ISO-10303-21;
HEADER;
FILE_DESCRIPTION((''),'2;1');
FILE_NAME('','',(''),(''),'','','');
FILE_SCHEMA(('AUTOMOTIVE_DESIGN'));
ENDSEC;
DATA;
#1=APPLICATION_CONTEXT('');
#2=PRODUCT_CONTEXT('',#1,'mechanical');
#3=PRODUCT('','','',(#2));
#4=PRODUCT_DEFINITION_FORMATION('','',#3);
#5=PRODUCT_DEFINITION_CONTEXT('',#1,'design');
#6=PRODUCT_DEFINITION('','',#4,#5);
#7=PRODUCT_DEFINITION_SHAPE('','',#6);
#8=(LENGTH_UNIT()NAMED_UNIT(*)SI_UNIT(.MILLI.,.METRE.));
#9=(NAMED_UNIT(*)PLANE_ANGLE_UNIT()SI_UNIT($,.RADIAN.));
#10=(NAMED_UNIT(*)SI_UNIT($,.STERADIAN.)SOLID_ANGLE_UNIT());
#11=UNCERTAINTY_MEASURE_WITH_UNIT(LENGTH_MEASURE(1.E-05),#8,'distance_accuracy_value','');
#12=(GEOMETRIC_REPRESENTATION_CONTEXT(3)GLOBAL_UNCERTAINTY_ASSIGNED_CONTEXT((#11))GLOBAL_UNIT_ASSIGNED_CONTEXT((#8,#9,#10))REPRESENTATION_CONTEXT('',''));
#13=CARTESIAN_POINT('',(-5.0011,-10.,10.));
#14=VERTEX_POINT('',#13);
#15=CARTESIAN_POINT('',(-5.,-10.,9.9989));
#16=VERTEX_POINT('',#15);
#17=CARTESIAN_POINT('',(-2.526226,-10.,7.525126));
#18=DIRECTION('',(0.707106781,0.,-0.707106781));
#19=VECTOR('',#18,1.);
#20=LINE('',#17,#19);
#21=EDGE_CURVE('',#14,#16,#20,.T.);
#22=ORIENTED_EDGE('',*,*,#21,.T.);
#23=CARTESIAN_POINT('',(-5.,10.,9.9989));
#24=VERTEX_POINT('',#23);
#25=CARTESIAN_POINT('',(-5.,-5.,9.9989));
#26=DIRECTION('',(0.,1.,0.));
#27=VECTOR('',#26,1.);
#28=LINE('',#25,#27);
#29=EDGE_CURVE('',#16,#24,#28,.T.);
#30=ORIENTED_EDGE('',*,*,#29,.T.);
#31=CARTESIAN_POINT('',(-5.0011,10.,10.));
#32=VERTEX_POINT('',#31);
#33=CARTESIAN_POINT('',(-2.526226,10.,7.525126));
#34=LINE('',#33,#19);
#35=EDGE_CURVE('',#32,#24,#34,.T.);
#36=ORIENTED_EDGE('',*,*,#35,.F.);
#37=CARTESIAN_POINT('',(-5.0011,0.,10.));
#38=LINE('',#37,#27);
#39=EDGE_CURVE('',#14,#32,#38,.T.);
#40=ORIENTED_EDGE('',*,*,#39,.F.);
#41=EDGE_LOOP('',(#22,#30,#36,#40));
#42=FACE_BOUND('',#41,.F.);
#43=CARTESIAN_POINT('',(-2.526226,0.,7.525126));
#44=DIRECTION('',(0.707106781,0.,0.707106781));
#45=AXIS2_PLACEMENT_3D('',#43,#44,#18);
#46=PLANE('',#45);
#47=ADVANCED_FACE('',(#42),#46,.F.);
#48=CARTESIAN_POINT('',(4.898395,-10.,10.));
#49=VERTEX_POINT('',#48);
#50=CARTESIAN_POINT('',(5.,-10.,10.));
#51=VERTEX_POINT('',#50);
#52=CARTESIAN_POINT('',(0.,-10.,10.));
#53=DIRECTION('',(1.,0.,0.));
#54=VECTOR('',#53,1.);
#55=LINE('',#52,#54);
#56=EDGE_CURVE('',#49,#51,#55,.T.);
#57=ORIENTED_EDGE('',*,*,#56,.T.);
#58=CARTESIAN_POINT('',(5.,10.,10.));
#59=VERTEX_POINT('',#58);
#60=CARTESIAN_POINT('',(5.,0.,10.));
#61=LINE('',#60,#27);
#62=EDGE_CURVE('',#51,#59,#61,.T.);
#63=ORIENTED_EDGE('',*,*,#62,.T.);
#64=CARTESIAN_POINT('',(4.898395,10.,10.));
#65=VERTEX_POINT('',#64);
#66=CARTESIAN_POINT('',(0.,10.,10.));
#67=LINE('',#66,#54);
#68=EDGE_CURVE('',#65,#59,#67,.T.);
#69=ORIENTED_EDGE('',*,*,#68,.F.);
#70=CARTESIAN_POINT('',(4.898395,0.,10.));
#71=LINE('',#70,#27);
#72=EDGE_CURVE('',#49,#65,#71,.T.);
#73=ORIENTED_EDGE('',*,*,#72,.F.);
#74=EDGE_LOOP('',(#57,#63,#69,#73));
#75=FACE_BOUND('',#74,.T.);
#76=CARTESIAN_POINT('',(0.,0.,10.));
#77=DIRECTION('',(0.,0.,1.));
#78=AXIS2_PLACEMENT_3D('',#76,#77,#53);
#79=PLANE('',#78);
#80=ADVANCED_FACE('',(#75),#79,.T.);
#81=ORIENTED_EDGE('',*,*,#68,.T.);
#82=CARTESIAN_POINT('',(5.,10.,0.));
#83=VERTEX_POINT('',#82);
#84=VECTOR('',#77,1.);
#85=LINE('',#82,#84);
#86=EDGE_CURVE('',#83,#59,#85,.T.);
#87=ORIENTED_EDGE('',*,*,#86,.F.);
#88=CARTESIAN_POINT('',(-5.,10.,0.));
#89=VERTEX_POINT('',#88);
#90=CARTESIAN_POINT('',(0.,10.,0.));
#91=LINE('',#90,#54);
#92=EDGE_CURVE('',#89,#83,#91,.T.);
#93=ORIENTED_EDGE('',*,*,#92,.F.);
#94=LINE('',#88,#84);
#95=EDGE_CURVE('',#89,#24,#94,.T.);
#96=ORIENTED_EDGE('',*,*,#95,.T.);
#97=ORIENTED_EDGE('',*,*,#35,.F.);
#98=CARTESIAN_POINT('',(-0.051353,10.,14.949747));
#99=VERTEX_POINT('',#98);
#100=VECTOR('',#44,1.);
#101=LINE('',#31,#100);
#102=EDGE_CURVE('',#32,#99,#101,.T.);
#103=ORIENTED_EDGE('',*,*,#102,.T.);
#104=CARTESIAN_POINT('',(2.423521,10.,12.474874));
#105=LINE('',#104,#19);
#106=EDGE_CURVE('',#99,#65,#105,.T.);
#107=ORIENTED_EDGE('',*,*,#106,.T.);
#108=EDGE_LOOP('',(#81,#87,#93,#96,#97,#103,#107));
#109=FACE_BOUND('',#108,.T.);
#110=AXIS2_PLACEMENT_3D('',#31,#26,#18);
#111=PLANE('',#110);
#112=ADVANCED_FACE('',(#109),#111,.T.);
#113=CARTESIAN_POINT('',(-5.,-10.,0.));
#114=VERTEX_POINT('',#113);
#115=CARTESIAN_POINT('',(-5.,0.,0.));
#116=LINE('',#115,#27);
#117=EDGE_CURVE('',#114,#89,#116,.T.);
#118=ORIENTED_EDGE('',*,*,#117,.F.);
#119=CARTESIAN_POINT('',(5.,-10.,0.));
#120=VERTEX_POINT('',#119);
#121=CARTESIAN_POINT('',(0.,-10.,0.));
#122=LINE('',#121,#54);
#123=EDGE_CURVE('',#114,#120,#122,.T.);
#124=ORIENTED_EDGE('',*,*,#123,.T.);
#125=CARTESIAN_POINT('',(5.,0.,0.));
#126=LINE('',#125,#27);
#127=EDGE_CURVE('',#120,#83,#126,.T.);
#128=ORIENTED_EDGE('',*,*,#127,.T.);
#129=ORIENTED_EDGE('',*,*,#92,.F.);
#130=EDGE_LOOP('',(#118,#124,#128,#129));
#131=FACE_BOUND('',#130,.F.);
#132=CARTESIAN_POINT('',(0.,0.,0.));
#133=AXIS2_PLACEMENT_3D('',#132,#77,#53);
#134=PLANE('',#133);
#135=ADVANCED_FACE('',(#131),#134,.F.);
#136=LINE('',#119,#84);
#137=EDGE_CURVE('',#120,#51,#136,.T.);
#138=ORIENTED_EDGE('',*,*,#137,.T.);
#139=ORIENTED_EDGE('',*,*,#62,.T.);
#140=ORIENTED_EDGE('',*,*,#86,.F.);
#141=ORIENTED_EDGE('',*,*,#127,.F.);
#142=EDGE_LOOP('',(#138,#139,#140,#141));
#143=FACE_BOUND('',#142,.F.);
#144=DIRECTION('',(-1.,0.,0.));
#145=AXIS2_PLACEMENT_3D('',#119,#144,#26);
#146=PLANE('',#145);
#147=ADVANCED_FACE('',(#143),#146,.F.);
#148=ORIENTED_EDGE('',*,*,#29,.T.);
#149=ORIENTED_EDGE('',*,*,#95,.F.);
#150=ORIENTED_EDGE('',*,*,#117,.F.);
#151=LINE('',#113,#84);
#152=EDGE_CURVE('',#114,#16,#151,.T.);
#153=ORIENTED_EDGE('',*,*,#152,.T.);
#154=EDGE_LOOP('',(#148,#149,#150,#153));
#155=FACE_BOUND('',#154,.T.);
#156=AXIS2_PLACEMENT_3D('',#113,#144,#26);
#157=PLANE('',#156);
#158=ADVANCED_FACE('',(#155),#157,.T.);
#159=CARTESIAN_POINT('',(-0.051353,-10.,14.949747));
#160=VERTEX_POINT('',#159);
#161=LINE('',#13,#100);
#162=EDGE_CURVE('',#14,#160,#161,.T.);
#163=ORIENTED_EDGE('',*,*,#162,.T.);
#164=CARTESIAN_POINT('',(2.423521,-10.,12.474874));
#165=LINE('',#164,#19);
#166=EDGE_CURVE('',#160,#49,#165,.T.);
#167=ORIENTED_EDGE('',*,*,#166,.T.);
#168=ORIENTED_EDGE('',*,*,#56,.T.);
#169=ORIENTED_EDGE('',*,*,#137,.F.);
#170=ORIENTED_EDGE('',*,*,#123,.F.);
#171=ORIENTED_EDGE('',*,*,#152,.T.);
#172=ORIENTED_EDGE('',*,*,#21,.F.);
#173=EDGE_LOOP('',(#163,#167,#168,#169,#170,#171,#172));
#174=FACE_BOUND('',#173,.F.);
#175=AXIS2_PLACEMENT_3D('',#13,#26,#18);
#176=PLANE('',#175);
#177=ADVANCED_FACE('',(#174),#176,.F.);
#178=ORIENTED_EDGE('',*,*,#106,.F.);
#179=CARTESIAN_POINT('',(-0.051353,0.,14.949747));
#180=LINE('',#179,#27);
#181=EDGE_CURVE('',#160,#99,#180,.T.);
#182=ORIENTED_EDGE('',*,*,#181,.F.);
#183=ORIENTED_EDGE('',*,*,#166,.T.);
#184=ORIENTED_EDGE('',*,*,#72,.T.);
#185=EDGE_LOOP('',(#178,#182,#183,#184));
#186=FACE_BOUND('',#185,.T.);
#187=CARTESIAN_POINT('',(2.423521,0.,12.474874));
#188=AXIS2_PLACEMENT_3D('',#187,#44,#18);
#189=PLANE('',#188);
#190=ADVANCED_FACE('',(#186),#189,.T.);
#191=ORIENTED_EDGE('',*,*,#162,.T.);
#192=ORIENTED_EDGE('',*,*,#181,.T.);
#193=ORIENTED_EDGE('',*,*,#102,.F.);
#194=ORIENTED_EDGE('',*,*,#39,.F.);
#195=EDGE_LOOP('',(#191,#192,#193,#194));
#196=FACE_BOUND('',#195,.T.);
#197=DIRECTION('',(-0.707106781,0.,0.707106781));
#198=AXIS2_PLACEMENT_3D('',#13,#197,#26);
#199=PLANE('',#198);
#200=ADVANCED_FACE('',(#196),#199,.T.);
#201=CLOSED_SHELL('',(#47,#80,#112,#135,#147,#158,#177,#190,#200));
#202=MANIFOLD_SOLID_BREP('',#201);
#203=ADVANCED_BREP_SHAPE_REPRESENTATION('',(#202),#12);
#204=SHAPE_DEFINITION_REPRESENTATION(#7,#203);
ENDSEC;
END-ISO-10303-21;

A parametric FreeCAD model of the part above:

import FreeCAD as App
import Part
import Sketcher
from FreeCAD import Vector


def add_polygon(sketch, points):
    """Adds a closed chain of lines whose ends are joined by coincident constraints."""
    first, n = sketch.GeometryCount, len(points)
    for a, b in zip(points, points[1:] + points[:1]):
        sketch.addGeometry(Part.LineSegment(App.Vector(*a, 0), App.Vector(*b, 0)), False)
    for i in range(n):
        sketch.addConstraint(Sketcher.Constraint("Coincident", first + i, 2, first + (i + 1) % n, 1))

doc = App.newDocument("Part")
body = doc.addObject("PartDesign::Body", "Body")

# Sketch on XY plane
sketch1 = body.newObject("Sketcher::SketchObject", "Sketch")
sketch1.AttachmentSupport = (doc.getObject("XY_Plane"), [""])
sketch1.MapMode = "FlatFace"
add_polygon(sketch1, [(0, 20), (0, 0), (7, 0), (7, 20)])  # lines 0-3
sketch1.addConstraint(Sketcher.Constraint("Vertical", 0))
sketch1.addConstraint(Sketcher.Constraint("Horizontal", 1))
sketch1.addConstraint(Sketcher.Constraint("Vertical", 2))
sketch1.addConstraint(Sketcher.Constraint("Horizontal", 3))
sketch1.addConstraint(Sketcher.Constraint("Coincident", 0, 2, -1, 1))
sketch1.addConstraint(Sketcher.Constraint("DistanceX", 1, 1, 1, 2, 7.0))
sketch1.addConstraint(Sketcher.Constraint("DistanceY", 0, 2, 0, 1, 20.0))
pad1 = body.newObject("PartDesign::Pad", "Pad")
pad1.Profile = sketch1
pad1.Length = 7
body2 = doc.addObject("PartDesign::Body", "Body001")
doc.recompute()

body.Placement = App.Placement(Vector(-0.0011, 0, 10), App.Rotation(Vector(0, 1, 0), 45))
boolean = body2.newObject("PartDesign::Boolean", "Boolean")
boolean.Type = "Fuse"
boolean.addObjects([body])
body3 = doc.addObject("PartDesign::Body", "Body002")

# Sketch on XY plane
sketch2 = body3.newObject("Sketcher::SketchObject", "Sketch001")
sketch2.AttachmentSupport = (doc.getObject("XY_Plane002"), [""])
sketch2.MapMode = "FlatFace"
add_polygon(sketch2, [(0, 20), (0, 0), (10, 0), (10, 20)])  # lines 0-3
sketch2.addConstraint(Sketcher.Constraint("Vertical", 0))
sketch2.addConstraint(Sketcher.Constraint("Horizontal", 1))
sketch2.addConstraint(Sketcher.Constraint("Vertical", 2))
sketch2.addConstraint(Sketcher.Constraint("Horizontal", 3))
sketch2.addConstraint(Sketcher.Constraint("Coincident", 0, 2, -1, 1))
sketch2.addConstraint(Sketcher.Constraint("DistanceX", 1, 1, 1, 2, 10.0))
sketch2.addConstraint(Sketcher.Constraint("DistanceY", 0, 2, 0, 1, 20.0))
pad2 = body3.newObject("PartDesign::Pad", "Pad001")
pad2.Profile = sketch2
pad2.Length = 10
doc.recompute()

boolean2 = body3.newObject("PartDesign::Boolean", "Boolean001")
boolean2.Type = "Fuse"
boolean2.addObjects([body2])
body4 = doc.addObject("PartDesign::Body", "Body003")
doc.recompute()

body3.Placement = App.Placement(Vector(-5, -10, 0), App.Rotation(Vector(0, 0, 1), 0))
boolean3 = body4.newObject("PartDesign::Boolean", "Boolean002")
boolean3.Type = "Fuse"
boolean3.addObjects([body3])

doc.recompute()
